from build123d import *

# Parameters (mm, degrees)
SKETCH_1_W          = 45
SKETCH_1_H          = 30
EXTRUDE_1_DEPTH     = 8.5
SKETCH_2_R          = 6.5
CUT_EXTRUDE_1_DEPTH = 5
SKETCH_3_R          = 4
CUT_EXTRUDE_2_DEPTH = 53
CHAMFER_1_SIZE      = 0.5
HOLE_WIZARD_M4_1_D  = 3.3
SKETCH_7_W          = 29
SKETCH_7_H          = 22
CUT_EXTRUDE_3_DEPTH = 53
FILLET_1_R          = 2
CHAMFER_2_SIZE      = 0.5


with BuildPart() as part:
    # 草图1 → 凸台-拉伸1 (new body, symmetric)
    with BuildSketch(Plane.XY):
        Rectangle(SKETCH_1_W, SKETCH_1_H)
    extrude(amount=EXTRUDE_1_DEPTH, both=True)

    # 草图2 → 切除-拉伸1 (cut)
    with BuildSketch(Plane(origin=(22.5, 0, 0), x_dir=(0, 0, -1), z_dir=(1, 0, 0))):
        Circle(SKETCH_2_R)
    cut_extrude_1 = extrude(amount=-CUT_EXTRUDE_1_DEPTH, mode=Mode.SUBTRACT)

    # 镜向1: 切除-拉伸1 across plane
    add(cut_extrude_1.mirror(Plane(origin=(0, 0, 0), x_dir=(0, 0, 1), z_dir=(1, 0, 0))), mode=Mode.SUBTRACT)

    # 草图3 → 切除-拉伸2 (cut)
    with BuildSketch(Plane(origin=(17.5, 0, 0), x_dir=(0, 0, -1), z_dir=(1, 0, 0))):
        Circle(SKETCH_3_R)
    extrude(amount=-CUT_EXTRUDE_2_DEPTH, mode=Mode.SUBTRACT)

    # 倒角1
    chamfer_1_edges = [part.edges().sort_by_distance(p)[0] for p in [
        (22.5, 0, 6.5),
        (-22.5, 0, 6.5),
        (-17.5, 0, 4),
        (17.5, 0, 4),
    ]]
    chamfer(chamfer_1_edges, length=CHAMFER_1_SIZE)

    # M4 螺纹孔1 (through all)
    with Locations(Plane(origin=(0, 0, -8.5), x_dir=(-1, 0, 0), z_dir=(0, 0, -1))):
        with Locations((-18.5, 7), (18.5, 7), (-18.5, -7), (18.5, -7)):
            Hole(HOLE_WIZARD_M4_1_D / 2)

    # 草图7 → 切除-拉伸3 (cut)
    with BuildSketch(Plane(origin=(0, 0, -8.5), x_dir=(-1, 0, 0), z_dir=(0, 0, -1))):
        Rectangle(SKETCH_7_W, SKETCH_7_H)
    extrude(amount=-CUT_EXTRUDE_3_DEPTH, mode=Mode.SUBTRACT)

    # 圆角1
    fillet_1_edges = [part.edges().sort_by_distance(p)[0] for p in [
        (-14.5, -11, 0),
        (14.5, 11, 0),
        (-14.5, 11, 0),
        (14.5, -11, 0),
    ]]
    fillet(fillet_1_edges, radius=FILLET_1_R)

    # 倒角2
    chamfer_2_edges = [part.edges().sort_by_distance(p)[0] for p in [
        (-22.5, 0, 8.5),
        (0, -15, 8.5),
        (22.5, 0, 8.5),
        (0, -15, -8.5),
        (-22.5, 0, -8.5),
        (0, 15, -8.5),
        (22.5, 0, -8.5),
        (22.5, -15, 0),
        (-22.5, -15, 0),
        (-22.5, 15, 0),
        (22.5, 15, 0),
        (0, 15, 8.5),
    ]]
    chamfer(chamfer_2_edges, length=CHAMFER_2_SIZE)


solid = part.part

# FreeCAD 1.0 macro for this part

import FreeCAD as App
import Part
import Sketcher


def edges_at(feature, points):
    """Names of the edges that pass closest to the given points."""
    edges = feature.Shape.Edges
    near = lambda p: min(range(len(edges)), key=lambda i: edges[i].distToShape(Part.Vertex(*p))[0])
    return sorted({f"Edge{near(p) + 1}" for p in points})

doc = App.newDocument("Part")
body = doc.addObject("PartDesign::Body", "Body")

# Sketch on XY plane
sketch1 = doc.addObject("Sketcher::SketchObject", "Sketch")
body.addObject(sketch1)
sketch1.AttachmentSupport = (doc.XY_Plane, [""])
sketch1.MapMode = "FlatFace"
sketch1.addGeometry(Part.LineSegment(App.Vector(-22, 15, 0), App.Vector(-22, -15, 0)), False)
sketch1.addGeometry(Part.LineSegment(App.Vector(-22, -15, 0), App.Vector(22, -15, 0)), False)
sketch1.addGeometry(Part.LineSegment(App.Vector(22, -15, 0), App.Vector(22, 15, 0)), False)
sketch1.addGeometry(Part.LineSegment(App.Vector(22, 15, 0), App.Vector(-22, 15, 0)), False)
sketch1.addConstraint(Sketcher.Constraint("Coincident", 0, 2, 1, 1))
sketch1.addConstraint(Sketcher.Constraint("Coincident", 1, 2, 2, 1))
sketch1.addConstraint(Sketcher.Constraint("Coincident", 2, 2, 3, 1))
sketch1.addConstraint(Sketcher.Constraint("Coincident", 3, 2, 0, 1))
sketch1.addConstraint(Sketcher.Constraint("Vertical", 0))
sketch1.addConstraint(Sketcher.Constraint("Horizontal", 1))
sketch1.addConstraint(Sketcher.Constraint("Vertical", 2))
sketch1.addConstraint(Sketcher.Constraint("Horizontal", 3))
sketch1.addConstraint(Sketcher.Constraint("Symmetric", 0, 2, 2, 2, -1, 1))
sketch1.addConstraint(Sketcher.Constraint("DistanceX", 1, 1, 1, 2, 45.0))
sketch1.addConstraint(Sketcher.Constraint("DistanceY", 0, 2, 0, 1, 30.0))
pad1 = doc.addObject("PartDesign::Pad", "Pad")
body.addObject(pad1)
pad1.Profile = sketch1
pad1.Length = 17
pad1.Midplane = True

# Sketch on YZ plane
sketch2 = doc.addObject("Sketcher::SketchObject", "Sketch001")
body.addObject(sketch2)
sketch2.AttachmentSupport = (doc.YZ_Plane, [""])
sketch2.MapMode = "FlatFace"
sketch2.AttachmentOffset = App.Placement(App.Vector(0, 0, 22.5), App.Rotation())
sketch2.addGeometry(Part.Circle(App.Vector(0, 0, 0), App.Vector(0, 0, 1), 6), False)
sketch2.addConstraint(Sketcher.Constraint("Coincident", 0, 3, -1, 1))
sketch2.addConstraint(Sketcher.Constraint("Diameter", 0, 13.0))
pocket1 = doc.addObject("PartDesign::Pocket", "Pocket")
body.addObject(pocket1)
pocket1.Profile = sketch2
pocket1.Length = 5
doc.recompute()

mirrored = doc.addObject("PartDesign::Mirrored", "Mirrored")
body.addObject(mirrored)
mirrored.Originals = [pocket1]
mirrored.MirrorPlane = (doc.YZ_Plane, [""])
body.Tip = mirrored

# Sketch on YZ plane
sketch3 = doc.addObject("Sketcher::SketchObject", "Sketch002")
body.addObject(sketch3)
sketch3.AttachmentSupport = (doc.YZ_Plane, [""])
sketch3.MapMode = "FlatFace"
sketch3.AttachmentOffset = App.Placement(App.Vector(0, 0, 17.5), App.Rotation())
sketch3.addGeometry(Part.Circle(App.Vector(0, 0, 0), App.Vector(0, 0, 1), 4), False)
sketch3.addConstraint(Sketcher.Constraint("Coincident", 0, 3, -1, 1))
sketch3.addConstraint(Sketcher.Constraint("Diameter", 0, 8.0))
pocket2 = doc.addObject("PartDesign::Pocket", "Pocket001")
body.addObject(pocket2)
pocket2.Profile = sketch3
pocket2.Length = 53
doc.recompute()

chamfer = doc.addObject("PartDesign::Chamfer", "Chamfer")
body.addObject(chamfer)
chamfer.Base = (pocket2, edges_at(pocket2, [
    (22.5, 0, 6.5),
    (-22.5, 0, 6.5),
    (-17.5, 0, 4),
    (17.5, 0, 4),
]))
chamfer.Size = 0.5

# Sketch on XY plane
sketch4 = doc.addObject("Sketcher::SketchObject", "Sketch003")
body.addObject(sketch4)
sketch4.AttachmentSupport = (doc.XY_Plane, [""])
sketch4.MapMode = "FlatFace"
sketch4.AttachmentOffset = App.Placement(App.Vector(0, 0, -8.5), App.Rotation())
sketch4.addGeometry(Part.Circle(App.Vector(18.5, 7, 0), App.Vector(0, 0, 1), 1.6), False)
sketch4.addGeometry(Part.Circle(App.Vector(-18.5, 7, 0), App.Vector(0, 0, 1), 1.6), False)
sketch4.addGeometry(Part.Circle(App.Vector(18.5, -7, 0), App.Vector(0, 0, 1), 1.6), False)
sketch4.addGeometry(Part.Circle(App.Vector(-18.5, -7, 0), App.Vector(0, 0, 1), 1.6), False)
sketch4.addConstraint(Sketcher.Constraint("Equal", 0, 1))
sketch4.addConstraint(Sketcher.Constraint("Equal", 1, 2))
sketch4.addConstraint(Sketcher.Constraint("Equal", 2, 3))
sketch4.addConstraint(Sketcher.Constraint("Symmetric", 1, 3, 2, 3, -1, 1))
sketch4.addConstraint(Sketcher.Constraint("Symmetric", 0, 3, 3, 3, -1, 1))
sketch4.addConstraint(Sketcher.Constraint("Symmetric", 0, 3, 1, 3, -2))
sketch4.addConstraint(Sketcher.Constraint("Diameter", 0, 3.3))
sketch4.addConstraint(Sketcher.Constraint("DistanceY", -1, 1, 0, 3, 7.0))
sketch4.addConstraint(Sketcher.Constraint("DistanceX", 1, 3, 0, 3, 37.0))
doc.recompute()
hole = doc.addObject("PartDesign::Hole", "Hole")
body.addObject(hole)
hole.Profile = sketch4
hole.ThreadType = "None"
hole.Diameter = 3.3
hole.DepthType = "ThroughAll"
hole.Reversed = True

# Sketch on XY plane
sketch5 = doc.addObject("Sketcher::SketchObject", "Sketch004")
body.addObject(sketch5)
sketch5.AttachmentSupport = (doc.XY_Plane, [""])
sketch5.MapMode = "FlatFace"
sketch5.AttachmentOffset = App.Placement(App.Vector(0, 0, -8.5), App.Rotation())
sketch5.addGeometry(Part.LineSegment(App.Vector(14, 11, 0), App.Vector(14, -11, 0)), False)
sketch5.addGeometry(Part.LineSegment(App.Vector(14, -11, 0), App.Vector(-14, -11, 0)), False)
sketch5.addGeometry(Part.LineSegment(App.Vector(-14, -11, 0), App.Vector(-14, 11, 0)), False)
sketch5.addGeometry(Part.LineSegment(App.Vector(-14, 11, 0), App.Vector(14, 11, 0)), False)
sketch5.addConstraint(Sketcher.Constraint("Coincident", 0, 2, 1, 1))
sketch5.addConstraint(Sketcher.Constraint("Coincident", 1, 2, 2, 1))
sketch5.addConstraint(Sketcher.Constraint("Coincident", 2, 2, 3, 1))
sketch5.addConstraint(Sketcher.Constraint("Coincident", 3, 2, 0, 1))
sketch5.addConstraint(Sketcher.Constraint("Vertical", 0))
sketch5.addConstraint(Sketcher.Constraint("Horizontal", 1))
sketch5.addConstraint(Sketcher.Constraint("Vertical", 2))
sketch5.addConstraint(Sketcher.Constraint("Horizontal", 3))
sketch5.addConstraint(Sketcher.Constraint("Symmetric", 0, 2, 2, 2, -1, 1))
sketch5.addConstraint(Sketcher.Constraint("DistanceX", 1, 2, 1, 1, 29.0))
sketch5.addConstraint(Sketcher.Constraint("DistanceY", 0, 2, 0, 1, 22.0))
pocket3 = doc.addObject("PartDesign::Pocket", "Pocket002")
body.addObject(pocket3)
pocket3.Profile = sketch5
pocket3.Length = 53
pocket3.Reversed = True
doc.recompute()

fillet = doc.addObject("PartDesign::Fillet", "Fillet")
body.addObject(fillet)
fillet.Base = (pocket3, edges_at(pocket3, [
    (-14.5, -11, 0),
    (14.5, 11, 0),
    (-14.5, 11, 0),
    (14.5, -11, 0),
]))
fillet.Radius = 2
doc.recompute()

chamfer2 = doc.addObject("PartDesign::Chamfer", "Chamfer001")
body.addObject(chamfer2)
chamfer2.Base = (fillet, edges_at(fillet, [
    (-22.5, 0, 8.5),
    (0, -15, 8.5),
    (22.5, 0, 8.5),
    (0, -15, -8.5),
    (-22.5, 0, -8.5),
    (0, 15, -8.5),
    (22.5, 0, -8.5),
    (22.5, -15, 0),
    (-22.5, -15, 0),
    (-22.5, 15, 0),
    (22.5, 15, 0),
    (0, 15, 8.5),
]))
chamfer2.Size = 0.5

doc.recompute()
